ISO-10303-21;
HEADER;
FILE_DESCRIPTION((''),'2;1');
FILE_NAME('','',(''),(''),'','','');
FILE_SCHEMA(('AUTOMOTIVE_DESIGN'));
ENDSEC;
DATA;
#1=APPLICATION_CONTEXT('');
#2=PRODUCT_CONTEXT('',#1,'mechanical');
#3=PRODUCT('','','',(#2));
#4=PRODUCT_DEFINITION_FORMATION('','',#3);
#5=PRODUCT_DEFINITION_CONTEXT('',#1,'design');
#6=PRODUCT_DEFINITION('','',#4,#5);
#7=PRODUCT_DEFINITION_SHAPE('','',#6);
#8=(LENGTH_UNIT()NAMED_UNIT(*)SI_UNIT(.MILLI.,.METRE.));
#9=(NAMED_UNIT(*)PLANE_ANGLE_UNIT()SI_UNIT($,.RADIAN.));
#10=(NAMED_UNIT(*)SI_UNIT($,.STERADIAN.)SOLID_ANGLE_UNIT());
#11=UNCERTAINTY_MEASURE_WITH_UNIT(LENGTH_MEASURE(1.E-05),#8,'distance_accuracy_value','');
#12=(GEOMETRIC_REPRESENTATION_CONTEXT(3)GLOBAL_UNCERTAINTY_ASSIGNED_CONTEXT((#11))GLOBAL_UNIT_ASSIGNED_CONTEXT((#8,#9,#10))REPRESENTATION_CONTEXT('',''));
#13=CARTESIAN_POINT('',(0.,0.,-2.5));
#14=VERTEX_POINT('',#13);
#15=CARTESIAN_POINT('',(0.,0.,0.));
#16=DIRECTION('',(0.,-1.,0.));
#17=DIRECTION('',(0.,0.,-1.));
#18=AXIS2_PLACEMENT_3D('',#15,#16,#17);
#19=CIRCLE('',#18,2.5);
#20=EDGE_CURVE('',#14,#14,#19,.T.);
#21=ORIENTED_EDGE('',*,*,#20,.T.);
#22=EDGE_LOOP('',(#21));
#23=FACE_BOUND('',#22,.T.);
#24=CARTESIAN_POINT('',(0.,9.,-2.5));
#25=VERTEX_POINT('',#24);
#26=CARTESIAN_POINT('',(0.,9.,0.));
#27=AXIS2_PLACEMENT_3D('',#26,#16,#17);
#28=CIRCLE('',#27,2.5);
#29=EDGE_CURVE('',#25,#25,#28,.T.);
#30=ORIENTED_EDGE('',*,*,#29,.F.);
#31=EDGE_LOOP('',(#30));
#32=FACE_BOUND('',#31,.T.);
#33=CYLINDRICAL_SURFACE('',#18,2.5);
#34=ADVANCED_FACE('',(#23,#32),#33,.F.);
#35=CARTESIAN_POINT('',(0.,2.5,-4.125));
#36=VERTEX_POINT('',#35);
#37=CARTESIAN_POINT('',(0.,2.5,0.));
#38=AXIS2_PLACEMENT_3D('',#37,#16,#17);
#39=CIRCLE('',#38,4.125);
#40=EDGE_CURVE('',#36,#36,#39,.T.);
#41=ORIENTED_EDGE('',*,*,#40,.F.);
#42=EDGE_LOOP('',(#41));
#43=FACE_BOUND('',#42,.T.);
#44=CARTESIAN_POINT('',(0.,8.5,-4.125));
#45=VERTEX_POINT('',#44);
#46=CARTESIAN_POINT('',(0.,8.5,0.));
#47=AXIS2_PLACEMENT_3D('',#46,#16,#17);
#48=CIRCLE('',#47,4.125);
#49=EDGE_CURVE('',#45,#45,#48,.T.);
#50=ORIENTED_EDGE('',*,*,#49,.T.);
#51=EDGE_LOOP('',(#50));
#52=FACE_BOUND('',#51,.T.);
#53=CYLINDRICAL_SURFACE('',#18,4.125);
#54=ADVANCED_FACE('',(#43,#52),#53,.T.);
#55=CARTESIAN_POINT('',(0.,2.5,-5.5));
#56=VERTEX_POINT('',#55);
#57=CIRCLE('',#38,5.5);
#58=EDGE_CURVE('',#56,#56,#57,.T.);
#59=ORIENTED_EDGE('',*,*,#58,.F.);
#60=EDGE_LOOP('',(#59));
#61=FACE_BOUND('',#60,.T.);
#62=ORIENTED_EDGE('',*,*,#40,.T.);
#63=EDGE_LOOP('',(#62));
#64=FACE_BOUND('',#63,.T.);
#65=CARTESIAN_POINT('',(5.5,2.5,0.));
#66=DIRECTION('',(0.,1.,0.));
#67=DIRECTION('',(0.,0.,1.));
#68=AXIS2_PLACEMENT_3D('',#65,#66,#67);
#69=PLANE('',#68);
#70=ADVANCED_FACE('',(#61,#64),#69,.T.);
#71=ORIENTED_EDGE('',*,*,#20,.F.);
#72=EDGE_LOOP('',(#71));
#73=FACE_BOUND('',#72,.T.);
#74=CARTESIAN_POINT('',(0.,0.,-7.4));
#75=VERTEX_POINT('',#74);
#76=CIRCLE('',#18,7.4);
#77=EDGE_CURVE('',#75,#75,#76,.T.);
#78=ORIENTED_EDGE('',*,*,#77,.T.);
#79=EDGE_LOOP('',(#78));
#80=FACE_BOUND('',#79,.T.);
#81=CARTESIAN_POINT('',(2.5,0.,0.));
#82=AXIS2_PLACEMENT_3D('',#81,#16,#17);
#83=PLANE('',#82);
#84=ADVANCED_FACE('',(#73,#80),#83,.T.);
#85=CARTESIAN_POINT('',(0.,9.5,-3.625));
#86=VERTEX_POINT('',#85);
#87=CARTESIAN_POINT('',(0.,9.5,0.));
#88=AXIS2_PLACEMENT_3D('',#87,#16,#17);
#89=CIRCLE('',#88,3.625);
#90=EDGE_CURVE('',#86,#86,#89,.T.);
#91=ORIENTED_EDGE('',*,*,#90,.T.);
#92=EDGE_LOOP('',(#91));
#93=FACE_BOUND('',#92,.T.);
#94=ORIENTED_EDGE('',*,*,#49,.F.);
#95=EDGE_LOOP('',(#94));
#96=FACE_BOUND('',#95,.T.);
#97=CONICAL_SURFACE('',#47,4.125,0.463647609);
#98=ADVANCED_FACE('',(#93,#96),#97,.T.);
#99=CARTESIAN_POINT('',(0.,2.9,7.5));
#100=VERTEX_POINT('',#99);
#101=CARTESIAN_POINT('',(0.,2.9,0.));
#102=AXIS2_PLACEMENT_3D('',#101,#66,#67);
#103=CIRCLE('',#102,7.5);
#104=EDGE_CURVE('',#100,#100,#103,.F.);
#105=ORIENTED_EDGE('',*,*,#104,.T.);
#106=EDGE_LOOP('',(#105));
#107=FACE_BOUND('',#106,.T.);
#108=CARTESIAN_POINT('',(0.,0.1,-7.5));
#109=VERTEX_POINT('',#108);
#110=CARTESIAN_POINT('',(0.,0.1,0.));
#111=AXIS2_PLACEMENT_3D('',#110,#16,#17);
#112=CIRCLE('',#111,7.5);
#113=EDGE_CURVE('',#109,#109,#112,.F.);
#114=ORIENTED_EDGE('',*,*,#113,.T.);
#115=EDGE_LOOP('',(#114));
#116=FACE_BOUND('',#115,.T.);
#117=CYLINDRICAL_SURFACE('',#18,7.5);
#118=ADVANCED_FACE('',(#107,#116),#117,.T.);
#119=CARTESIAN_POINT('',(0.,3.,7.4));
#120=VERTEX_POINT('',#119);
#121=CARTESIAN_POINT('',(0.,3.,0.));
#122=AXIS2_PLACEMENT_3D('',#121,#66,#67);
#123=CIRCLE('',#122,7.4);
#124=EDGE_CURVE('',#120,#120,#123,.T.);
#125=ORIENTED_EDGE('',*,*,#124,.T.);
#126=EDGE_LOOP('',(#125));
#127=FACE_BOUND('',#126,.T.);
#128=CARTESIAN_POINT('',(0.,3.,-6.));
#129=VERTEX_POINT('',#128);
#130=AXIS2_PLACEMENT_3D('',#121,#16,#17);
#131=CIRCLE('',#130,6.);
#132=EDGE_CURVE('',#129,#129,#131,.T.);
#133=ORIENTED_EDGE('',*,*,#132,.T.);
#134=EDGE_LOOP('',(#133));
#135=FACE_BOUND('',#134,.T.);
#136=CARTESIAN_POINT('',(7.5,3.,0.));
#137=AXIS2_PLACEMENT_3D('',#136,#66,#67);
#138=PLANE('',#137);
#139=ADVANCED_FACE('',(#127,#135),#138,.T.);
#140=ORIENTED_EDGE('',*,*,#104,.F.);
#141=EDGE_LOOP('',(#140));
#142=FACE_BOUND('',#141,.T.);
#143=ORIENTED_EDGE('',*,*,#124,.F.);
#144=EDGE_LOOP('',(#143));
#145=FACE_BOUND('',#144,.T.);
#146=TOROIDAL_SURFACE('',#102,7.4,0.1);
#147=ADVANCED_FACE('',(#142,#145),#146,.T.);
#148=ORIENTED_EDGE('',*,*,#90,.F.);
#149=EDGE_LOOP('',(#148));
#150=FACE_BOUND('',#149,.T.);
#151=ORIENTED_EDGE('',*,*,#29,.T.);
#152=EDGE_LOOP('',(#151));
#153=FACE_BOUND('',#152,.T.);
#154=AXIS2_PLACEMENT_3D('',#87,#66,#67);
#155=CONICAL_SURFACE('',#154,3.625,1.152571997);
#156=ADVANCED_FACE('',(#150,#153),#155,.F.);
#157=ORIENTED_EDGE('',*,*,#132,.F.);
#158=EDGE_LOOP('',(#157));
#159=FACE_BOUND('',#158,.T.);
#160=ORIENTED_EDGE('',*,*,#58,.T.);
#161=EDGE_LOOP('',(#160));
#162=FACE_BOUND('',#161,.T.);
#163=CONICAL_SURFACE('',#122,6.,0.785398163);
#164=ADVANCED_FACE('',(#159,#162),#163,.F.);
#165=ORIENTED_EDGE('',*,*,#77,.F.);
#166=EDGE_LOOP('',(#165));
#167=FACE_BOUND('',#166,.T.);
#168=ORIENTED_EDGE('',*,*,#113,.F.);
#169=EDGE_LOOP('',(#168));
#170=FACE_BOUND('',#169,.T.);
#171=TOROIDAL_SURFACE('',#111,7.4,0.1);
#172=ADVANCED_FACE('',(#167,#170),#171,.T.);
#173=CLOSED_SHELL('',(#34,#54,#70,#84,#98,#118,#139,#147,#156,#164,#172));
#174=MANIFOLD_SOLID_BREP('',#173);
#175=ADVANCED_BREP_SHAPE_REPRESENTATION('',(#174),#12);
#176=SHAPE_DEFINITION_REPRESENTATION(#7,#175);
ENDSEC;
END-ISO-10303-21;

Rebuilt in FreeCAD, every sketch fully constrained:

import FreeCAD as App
import Part
import Sketcher
Q = App.Units.Quantity


def edges_at(feature, points):
    """Names of the edges that pass closest to the given points."""
    edges = feature.Shape.Edges
    near = lambda p: min(range(len(edges)), key=lambda i: edges[i].distToShape(Part.Vertex(*p))[0])
    return sorted({f"Edge{near(p) + 1}" for p in points})

doc = App.newDocument("Part")
params = doc.addObject("Spreadsheet::Sheet", "Params")
for row, (alias, value) in enumerate([
    ("sketch1_width", "5 mm"),
    ("sketch1_height", "3 mm"),
    ("sketch1_height2", "6 mm"),
    ("sketch1_height3", "9 mm"),
    ("sketch1_width2", "1.5 mm"),
    ("revolution_angle", "360 deg"),
    ("fillet_radius", "0.1 mm"),
], start=1):
    params.set(f"A{row}", alias)
    params.set(f"B{row}", "=" + value)
    params.setAlias(f"B{row}", alias)

body = doc.addObject("PartDesign::Body", "Body")

# Sketch on XY plane
sketch1 = body.newObject("Sketcher::SketchObject", "Sketch")
sketch1.AttachmentSupport = (doc.getObject("XY_Plane"), [""])
sketch1.MapMode = "FlatFace"
sketch1.addGeometry(Part.LineSegment(App.Vector(2.5, 0, 0), App.Vector(7.5, 0, 0)), False)
sketch1.addGeometry(Part.LineSegment(App.Vector(7.5, 0, 0), App.Vector(7.5, 3, 0)), False)
sketch1.addGeometry(Part.LineSegment(App.Vector(7.5, 3, 0), App.Vector(6, 3, 0)), False)
sketch1.addGeometry(Part.LineSegment(App.Vector(6, 3, 0), App.Vector(5.5, 2.5, 0)), False)
sketch1.addGeometry(Part.LineSegment(App.Vector(5.5, 2.5, 0), App.Vector(4.1, 2.5, 0)), False)
sketch1.addGeometry(Part.LineSegment(App.Vector(4.1, 2.5, 0), App.Vector(4.1, 8.5, 0)), False)
sketch1.addGeometry(Part.LineSegment(App.Vector(4.1, 8.5, 0), App.Vector(3.6, 9.5, 0)), False)
sketch1.addGeometry(Part.LineSegment(App.Vector(3.6, 9.5, 0), App.Vector(2.5, 9, 0)), False)
sketch1.addGeometry(Part.LineSegment(App.Vector(2.5, 9, 0), App.Vector(2.5, 0, 0)), False)
sketch1.addConstraint(Sketcher.Constraint("Coincident", 0, 2, 1, 1))
sketch1.addConstraint(Sketcher.Constraint("Coincident", 1, 2, 2, 1))
sketch1.addConstraint(Sketcher.Constraint("Coincident", 2, 2, 3, 1))
sketch1.addConstraint(Sketcher.Constraint("Coincident", 3, 2, 4, 1))
sketch1.addConstraint(Sketcher.Constraint("Coincident", 4, 2, 5, 1))
sketch1.addConstraint(Sketcher.Constraint("Coincident", 5, 2, 6, 1))
sketch1.addConstraint(Sketcher.Constraint("Coincident", 6, 2, 7, 1))
sketch1.addConstraint(Sketcher.Constraint("Coincident", 7, 2, 8, 1))
sketch1.addConstraint(Sketcher.Constraint("Coincident", 8, 2, 0, 1))
sketch1.addConstraint(Sketcher.Constraint("Horizontal", 0))
sketch1.addConstraint(Sketcher.Constraint("Vertical", 1))
sketch1.addConstraint(Sketcher.Constraint("Horizontal", 2))
sketch1.addConstraint(Sketcher.Constraint("Horizontal", 4))
sketch1.addConstraint(Sketcher.Constraint("Vertical", 5))
sketch1.addConstraint(Sketcher.Constraint("Vertical", 8))
sketch1.addConstraint(Sketcher.Constraint("PointOnObject", 0, 2, -1))
sketch1.addConstraint(Sketcher.Constraint("DistanceX", 0, 1, 0, 2, 5.0))
sketch1.addConstraint(Sketcher.Constraint("DistanceY", 1, 1, 1, 2, 3.0))
sketch1.addConstraint(Sketcher.Constraint("DistanceY", 5, 1, 5, 2, 6.0))
sketch1.addConstraint(Sketcher.Constraint("DistanceY", 8, 2, 8, 1, 9.0))
sketch1.addConstraint(Sketcher.Constraint("Angle", 3, Q("-135 deg")))
sketch1.addConstraint(Sketcher.Constraint("DistanceX", 2, 2, 2, 1, 1.5))
sketch1.addConstraint(Sketcher.Constraint("DistanceX", -1, 1, 2, 2, 6.0))
sketch1.addConstraint(Sketcher.Constraint("DistanceX", 3, 2, 1, 2, 2.0))
sketch1.addConstraint(Sketcher.Constraint("DistanceY", 5, 2, 6, 2, 1.0))
sketch1.addConstraint(Sketcher.Constraint("DistanceX", 6, 2, 5, 2, 0.5))
sketch1.addConstraint(Sketcher.Constraint("DistanceX", 4, 2, 4, 1, 1.375))
sketch1.setExpression("Constraints[16]", "Params.sketch1_width")
sketch1.setExpression("Constraints[17]", "Params.sketch1_height")
sketch1.setExpression("Constraints[18]", "Params.sketch1_height2")
sketch1.setExpression("Constraints[19]", "Params.sketch1_height3")
sketch1.setExpression("Constraints[21]", "Params.sketch1_width2")
revolution = body.newObject("PartDesign::Revolution", "Revolution")
revolution.Profile = sketch1
revolution.ReferenceAxis = (sketch1, ["V_Axis"])
revolution.setExpression("Angle", "Params.revolution_angle")
doc.recompute()

fillet = body.newObject("PartDesign::Fillet", "Fillet")
fillet.Base = (revolution, edges_at(revolution, [(0, 3, 7.5), (0, 0, 7.5)]))
fillet.setExpression("Radius", "Params.fillet_radius")

doc.recompute()
